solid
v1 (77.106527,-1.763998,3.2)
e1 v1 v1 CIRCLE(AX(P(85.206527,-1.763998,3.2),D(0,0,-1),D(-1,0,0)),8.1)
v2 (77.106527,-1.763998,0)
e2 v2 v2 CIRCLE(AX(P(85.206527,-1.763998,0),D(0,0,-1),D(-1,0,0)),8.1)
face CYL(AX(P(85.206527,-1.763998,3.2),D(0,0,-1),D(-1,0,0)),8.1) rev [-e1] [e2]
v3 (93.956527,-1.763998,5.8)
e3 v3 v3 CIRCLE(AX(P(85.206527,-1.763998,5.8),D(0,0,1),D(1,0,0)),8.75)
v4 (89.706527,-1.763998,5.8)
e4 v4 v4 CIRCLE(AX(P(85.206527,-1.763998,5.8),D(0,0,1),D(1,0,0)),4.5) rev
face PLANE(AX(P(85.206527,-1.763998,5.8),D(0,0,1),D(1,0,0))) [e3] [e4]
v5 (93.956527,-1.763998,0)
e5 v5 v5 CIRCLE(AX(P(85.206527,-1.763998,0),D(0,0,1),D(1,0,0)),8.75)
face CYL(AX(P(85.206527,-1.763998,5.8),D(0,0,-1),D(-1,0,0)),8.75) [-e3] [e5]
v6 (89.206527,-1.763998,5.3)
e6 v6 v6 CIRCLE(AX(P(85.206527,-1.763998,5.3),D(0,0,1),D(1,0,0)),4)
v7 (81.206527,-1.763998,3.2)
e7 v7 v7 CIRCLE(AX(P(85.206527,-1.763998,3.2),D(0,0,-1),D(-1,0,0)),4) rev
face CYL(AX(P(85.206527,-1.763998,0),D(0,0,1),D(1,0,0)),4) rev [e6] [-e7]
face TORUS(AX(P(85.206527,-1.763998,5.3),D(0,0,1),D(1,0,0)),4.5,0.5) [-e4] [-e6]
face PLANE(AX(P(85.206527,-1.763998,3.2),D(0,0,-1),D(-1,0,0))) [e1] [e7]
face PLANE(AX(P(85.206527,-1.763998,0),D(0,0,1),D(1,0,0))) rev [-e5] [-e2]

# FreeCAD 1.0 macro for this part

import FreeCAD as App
import Part
import Sketcher
from FreeCAD import Vector


def edges_at(feature, points):
    """Names of the edges that pass closest to the given points."""
    edges = feature.Shape.Edges
    near = lambda p: min(range(len(edges)), key=lambda i: edges[i].distToShape(Part.Vertex(*p))[0])
    return sorted({f"Edge{near(p) + 1}" for p in points})

doc = App.newDocument("Part")
body = doc.addObject("PartDesign::Body", "Body")

sketch1 = body.newObject("Sketcher::SketchObject", "Sketch")
sketch1.AttachmentSupport = (doc.getObject("XY_Plane"), [""])
sketch1.MapMode = "FlatFace"
sketch1.addGeometry(Part.Circle(Vector(85.206527, -1.763998, 0), Vector(0, 0, 1), 8.75), False)
sketch1.addConstraint([
    Sketcher.Constraint("Diameter", 0, 17.5),
    Sketcher.Constraint("DistanceX", -1, 1, 0, 3, 85.206527),
    Sketcher.Constraint("DistanceY", 0, 3, -1, 1, 1.763998),
])
pad1 = body.newObject("PartDesign::Pad", "Pad")
pad1.Profile = sketch1
pad1.Length = 5.8

sketch2 = body.newObject("Sketcher::SketchObject", "Sketch001")
sketch2.AttachmentSupport = (doc.getObject("XY_Plane"), [""])
sketch2.MapMode = "FlatFace"
sketch2.AttachmentOffset = App.Placement(Vector(0, 0, 5.8), App.Rotation())
sketch2.addGeometry(Part.Circle(Vector(85.206527, -1.763998, 0), Vector(0, 0, 1), 4), False)
sketch2.addConstraint([
    Sketcher.Constraint("Diameter", 0, 8.0),
    Sketcher.Constraint("DistanceX", -1, 1, 0, 3, 85.206527),
    Sketcher.Constraint("DistanceY", 0, 3, -1, 1, 1.763998),
])
pocket1 = body.newObject("PartDesign::Pocket", "Pocket")
pocket1.Profile = sketch2
pocket1.Type = "ThroughAll"

sketch3 = body.newObject("Sketcher::SketchObject", "Sketch002")
sketch3.AttachmentSupport = (doc.getObject("XY_Plane"), [""])
sketch3.MapMode = "FlatFace"
sketch3.addGeometry(Part.Circle(Vector(85.206527, -1.763998, 0), Vector(0, 0, 1), 8.1), False)
sketch3.addConstraint([
    Sketcher.Constraint("Diameter", 0, 16.2),
    Sketcher.Constraint("DistanceX", -1, 1, 0, 3, 85.206527),
    Sketcher.Constraint("DistanceY", 0, 3, -1, 1, 1.763998),
])
pocket2 = body.newObject("PartDesign::Pocket", "Pocket001")
pocket2.Profile = sketch3
pocket2.Length = 3.2
pocket2.Reversed = True
doc.recompute()

fillet = body.newObject("PartDesign::Fillet", "Fillet")
fillet.Base = (pocket2, edges_at(pocket2, [(81.207, -1.764, 5.8)]))
fillet.Radius = 0.5

doc.recompute()
